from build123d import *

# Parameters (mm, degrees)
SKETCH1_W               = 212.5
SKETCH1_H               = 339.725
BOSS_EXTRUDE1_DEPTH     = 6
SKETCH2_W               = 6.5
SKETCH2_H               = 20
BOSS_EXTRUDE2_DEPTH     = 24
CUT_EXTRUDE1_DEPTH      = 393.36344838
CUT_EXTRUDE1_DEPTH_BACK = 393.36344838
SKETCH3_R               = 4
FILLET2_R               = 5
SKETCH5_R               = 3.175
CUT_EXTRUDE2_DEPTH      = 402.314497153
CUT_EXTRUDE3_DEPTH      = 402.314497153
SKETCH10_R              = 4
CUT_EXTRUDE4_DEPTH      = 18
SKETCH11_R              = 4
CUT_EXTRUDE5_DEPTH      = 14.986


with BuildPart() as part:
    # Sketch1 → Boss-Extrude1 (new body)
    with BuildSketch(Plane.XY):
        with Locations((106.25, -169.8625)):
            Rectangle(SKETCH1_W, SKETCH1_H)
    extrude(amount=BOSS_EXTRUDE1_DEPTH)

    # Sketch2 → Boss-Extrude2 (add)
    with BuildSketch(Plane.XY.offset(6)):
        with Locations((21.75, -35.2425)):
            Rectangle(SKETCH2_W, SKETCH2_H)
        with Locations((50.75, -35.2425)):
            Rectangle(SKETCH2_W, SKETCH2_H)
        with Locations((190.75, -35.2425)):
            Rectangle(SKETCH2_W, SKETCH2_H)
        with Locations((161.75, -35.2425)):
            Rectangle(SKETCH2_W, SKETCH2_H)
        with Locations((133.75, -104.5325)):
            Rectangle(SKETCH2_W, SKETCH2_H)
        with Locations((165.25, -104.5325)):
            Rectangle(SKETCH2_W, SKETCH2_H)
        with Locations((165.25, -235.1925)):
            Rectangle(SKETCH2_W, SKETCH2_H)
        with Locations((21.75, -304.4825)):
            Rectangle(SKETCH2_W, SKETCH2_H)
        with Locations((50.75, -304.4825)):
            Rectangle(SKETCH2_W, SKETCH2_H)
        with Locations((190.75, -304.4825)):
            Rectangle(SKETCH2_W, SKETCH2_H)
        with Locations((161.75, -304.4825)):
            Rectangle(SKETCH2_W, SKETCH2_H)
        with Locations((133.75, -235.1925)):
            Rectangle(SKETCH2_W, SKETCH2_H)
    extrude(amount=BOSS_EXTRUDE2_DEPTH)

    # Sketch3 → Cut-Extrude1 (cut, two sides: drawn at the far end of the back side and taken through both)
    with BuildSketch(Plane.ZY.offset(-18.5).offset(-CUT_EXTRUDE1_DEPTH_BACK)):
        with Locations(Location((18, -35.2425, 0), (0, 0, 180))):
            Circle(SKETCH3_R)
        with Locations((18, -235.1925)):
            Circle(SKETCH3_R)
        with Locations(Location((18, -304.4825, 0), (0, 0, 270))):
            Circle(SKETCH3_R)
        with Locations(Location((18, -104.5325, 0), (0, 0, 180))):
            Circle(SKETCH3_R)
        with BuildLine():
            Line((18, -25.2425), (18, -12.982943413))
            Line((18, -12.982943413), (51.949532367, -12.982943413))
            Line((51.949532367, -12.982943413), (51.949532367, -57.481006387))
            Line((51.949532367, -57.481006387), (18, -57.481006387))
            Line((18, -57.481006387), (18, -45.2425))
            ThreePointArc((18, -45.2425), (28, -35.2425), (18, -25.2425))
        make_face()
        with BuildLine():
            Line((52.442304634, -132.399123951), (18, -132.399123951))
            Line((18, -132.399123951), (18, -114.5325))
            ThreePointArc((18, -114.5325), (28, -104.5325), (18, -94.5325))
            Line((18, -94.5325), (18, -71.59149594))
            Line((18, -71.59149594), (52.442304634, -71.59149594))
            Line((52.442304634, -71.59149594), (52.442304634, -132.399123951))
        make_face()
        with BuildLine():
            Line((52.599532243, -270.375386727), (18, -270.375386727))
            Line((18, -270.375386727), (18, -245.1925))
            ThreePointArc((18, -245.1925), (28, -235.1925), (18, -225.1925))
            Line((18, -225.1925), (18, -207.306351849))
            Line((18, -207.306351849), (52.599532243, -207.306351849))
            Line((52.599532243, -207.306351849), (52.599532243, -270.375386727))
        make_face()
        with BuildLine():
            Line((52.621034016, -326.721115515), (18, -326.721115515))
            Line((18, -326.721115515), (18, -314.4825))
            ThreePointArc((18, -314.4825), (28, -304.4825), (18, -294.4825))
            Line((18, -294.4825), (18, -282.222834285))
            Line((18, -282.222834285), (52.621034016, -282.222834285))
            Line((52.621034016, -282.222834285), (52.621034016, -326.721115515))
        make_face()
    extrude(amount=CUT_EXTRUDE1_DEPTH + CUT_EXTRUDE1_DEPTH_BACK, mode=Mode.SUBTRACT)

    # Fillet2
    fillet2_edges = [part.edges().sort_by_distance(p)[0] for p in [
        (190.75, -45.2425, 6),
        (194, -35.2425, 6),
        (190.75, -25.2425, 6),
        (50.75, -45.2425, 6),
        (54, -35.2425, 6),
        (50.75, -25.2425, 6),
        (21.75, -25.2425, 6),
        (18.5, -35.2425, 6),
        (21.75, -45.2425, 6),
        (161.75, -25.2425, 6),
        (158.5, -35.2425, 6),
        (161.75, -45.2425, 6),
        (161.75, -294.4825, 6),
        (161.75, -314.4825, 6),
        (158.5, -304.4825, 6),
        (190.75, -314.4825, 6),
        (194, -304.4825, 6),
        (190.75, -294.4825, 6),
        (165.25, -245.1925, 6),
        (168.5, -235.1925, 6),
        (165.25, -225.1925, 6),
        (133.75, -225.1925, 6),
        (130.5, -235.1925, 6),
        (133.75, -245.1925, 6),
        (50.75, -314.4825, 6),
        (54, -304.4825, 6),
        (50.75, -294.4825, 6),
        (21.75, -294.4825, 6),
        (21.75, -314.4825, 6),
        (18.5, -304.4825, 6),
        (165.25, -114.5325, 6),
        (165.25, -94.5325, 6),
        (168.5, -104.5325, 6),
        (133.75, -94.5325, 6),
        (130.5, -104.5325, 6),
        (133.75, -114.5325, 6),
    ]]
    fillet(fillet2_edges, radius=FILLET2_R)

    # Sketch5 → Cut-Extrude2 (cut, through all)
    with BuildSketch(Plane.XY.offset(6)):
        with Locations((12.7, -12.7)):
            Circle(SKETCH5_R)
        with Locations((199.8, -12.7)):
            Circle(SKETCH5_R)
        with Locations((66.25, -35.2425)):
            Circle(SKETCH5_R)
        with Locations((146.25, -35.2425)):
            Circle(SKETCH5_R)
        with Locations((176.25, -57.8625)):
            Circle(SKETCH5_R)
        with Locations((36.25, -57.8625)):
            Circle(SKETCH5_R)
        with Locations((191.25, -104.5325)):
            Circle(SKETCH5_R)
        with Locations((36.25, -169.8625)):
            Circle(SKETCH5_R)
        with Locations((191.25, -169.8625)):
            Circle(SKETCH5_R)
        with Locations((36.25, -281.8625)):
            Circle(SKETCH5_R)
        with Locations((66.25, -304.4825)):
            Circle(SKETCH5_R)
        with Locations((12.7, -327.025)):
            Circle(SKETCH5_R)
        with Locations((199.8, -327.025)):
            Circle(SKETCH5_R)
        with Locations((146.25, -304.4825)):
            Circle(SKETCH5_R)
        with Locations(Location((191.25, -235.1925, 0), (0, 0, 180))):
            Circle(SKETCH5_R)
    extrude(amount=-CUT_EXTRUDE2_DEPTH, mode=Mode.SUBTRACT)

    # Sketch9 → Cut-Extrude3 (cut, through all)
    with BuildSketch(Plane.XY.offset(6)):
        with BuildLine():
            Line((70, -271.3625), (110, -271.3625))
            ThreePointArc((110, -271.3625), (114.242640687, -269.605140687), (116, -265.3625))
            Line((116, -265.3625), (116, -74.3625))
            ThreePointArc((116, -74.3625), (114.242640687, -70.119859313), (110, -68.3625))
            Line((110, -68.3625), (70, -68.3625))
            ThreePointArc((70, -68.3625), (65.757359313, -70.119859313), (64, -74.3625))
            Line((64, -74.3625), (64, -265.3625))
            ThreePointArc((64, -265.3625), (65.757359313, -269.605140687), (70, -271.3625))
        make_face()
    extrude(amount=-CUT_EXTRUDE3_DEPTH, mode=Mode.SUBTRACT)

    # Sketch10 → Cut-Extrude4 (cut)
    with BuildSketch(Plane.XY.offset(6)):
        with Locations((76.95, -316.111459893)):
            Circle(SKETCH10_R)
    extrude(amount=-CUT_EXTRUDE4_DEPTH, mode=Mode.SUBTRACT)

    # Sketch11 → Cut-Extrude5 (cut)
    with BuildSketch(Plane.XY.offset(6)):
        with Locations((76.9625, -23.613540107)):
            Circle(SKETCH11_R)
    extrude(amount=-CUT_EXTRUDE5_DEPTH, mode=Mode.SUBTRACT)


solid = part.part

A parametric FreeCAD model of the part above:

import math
import FreeCAD as App
import Part
import Sketcher
from FreeCAD import Vector
Q = App.Units.Quantity


def edges_at(feature, points):
    """Names of the edges that pass closest to the given points."""
    edges = feature.Shape.Edges
    near = lambda p: min(range(len(edges)), key=lambda i: edges[i].distToShape(Part.Vertex(*p))[0])
    return sorted({f"Edge{near(p) + 1}" for p in points})


def add_polygon(sketch, points):
    """Adds a closed chain of lines whose ends are joined by coincident constraints."""
    first, n = sketch.GeometryCount, len(points)
    for a, b in zip(points, points[1:] + points[:1]):
        sketch.addGeometry(Part.LineSegment(App.Vector(*a, 0), App.Vector(*b, 0)), False)
    for i in range(n):
        sketch.addConstraint(Sketcher.Constraint("Coincident", first + i, 2, first + (i + 1) % n, 1))

doc = App.newDocument("Part")
body = doc.addObject("PartDesign::Body", "Body")

sketch1 = body.newObject("Sketcher::SketchObject", "Sketch")
sketch1.AttachmentSupport = (doc.getObject("XY_Plane"), [""])
sketch1.MapMode = "FlatFace"
add_polygon(sketch1, [(0, 0), (0, -340), (212, -340), (212, 0)])
sketch1.addConstraint([
    Sketcher.Constraint("Vertical", 0),
    Sketcher.Constraint("Horizontal", 1),
    Sketcher.Constraint("Vertical", 2),
    Sketcher.Constraint("Horizontal", 3),
    Sketcher.Constraint("Coincident", 3, 2, -1, 1),
    Sketcher.Constraint("DistanceX", 1, 1, 1, 2, Q("212.5 mm")),
    Sketcher.Constraint("DistanceY", 0, 2, 0, 1, Q("339.725 mm")),
])
pad1 = body.newObject("PartDesign::Pad", "Pad")
pad1.Profile = sketch1
pad1.Length = 6

sketch2 = body.newObject("Sketcher::SketchObject", "Sketch001")
sketch2.AttachmentSupport = (doc.getObject("XY_Plane"), [""])
sketch2.MapMode = "FlatFace"
sketch2.AttachmentOffset = App.Placement(Vector(0, 0, 6), App.Rotation())
add_polygon(sketch2, [(18, -25), (18, -45), (25, -45), (25, -25)])
add_polygon(sketch2, [(48, -25), (48, -45), (54, -45), (54, -25)])
add_polygon(sketch2, [(188, -25), (188, -45), (194, -45), (194, -25)])
add_polygon(sketch2, [(158, -25), (158, -45), (165, -45), (165, -25)])
add_polygon(sketch2, [(130, -95), (130, -115), (137, -115), (137, -95)])
add_polygon(sketch2, [(162, -95), (162, -115), (168, -115), (168, -95)])
add_polygon(sketch2, [(162, -225), (162, -245), (168, -245), (168, -225)])
add_polygon(sketch2, [(18, -294), (18, -314), (25, -314), (25, -294)])
add_polygon(sketch2, [(48, -294), (48, -314), (54, -314), (54, -294)])
add_polygon(sketch2, [(188, -294), (188, -314), (194, -314), (194, -294)])
add_polygon(sketch2, [(158, -294), (158, -314), (165, -314), (165, -294)])
add_polygon(sketch2, [(130, -225), (130, -245), (137, -245), (137, -225)])
sketch2.addConstraint([
    Sketcher.Constraint("Vertical", 0),
    Sketcher.Constraint("Horizontal", 1),
    Sketcher.Constraint("Vertical", 2),
    Sketcher.Constraint("Horizontal", 3),
    Sketcher.Constraint("Vertical", 4),
    Sketcher.Constraint("Horizontal", 5),
    Sketcher.Constraint("Vertical", 6),
    Sketcher.Constraint("Horizontal", 7),
    Sketcher.Constraint("Vertical", 8),
    Sketcher.Constraint("Horizontal", 9),
    Sketcher.Constraint("Vertical", 10),
    Sketcher.Constraint("Horizontal", 11),
    Sketcher.Constraint("Vertical", 12),
    Sketcher.Constraint("Horizontal", 13),
    Sketcher.Constraint("Vertical", 14),
    Sketcher.Constraint("Horizontal", 15),
    Sketcher.Constraint("Vertical", 16),
    Sketcher.Constraint("Horizontal", 17),
    Sketcher.Constraint("Vertical", 18),
    Sketcher.Constraint("Horizontal", 19),
    Sketcher.Constraint("Vertical", 20),
    Sketcher.Constraint("Horizontal", 21),
    Sketcher.Constraint("Vertical", 22),
    Sketcher.Constraint("Horizontal", 23),
    Sketcher.Constraint("Vertical", 24),
    Sketcher.Constraint("Horizontal", 25),
    Sketcher.Constraint("Vertical", 26),
    Sketcher.Constraint("Horizontal", 27),
    Sketcher.Constraint("Vertical", 28),
    Sketcher.Constraint("Horizontal", 29),
    Sketcher.Constraint("Vertical", 30),
    Sketcher.Constraint("Horizontal", 31),
    Sketcher.Constraint("Vertical", 32),
    Sketcher.Constraint("Horizontal", 33),
    Sketcher.Constraint("Vertical", 34),
    Sketcher.Constraint("Horizontal", 35),
    Sketcher.Constraint("Vertical", 36),
    Sketcher.Constraint("Horizontal", 37),
    Sketcher.Constraint("Vertical", 38),
    Sketcher.Constraint("Horizontal", 39),
    Sketcher.Constraint("Vertical", 40),
    Sketcher.Constraint("Horizontal", 41),
    Sketcher.Constraint("Vertical", 42),
    Sketcher.Constraint("Horizontal", 43),
    Sketcher.Constraint("Vertical", 44),
    Sketcher.Constraint("Horizontal", 45),
    Sketcher.Constraint("Vertical", 46),
    Sketcher.Constraint("Horizontal", 47),
    Sketcher.Constraint("Horizontal", 1, 2, 4, 2),
    Sketcher.Constraint("Horizontal", 3, 2, 6, 2),
    Sketcher.Constraint("Horizontal", 5, 2, 8, 2),
    Sketcher.Constraint("Horizontal", 7, 2, 10, 2),
    Sketcher.Constraint("Horizontal", 9, 2, 12, 2),
    Sketcher.Constraint("Horizontal", 11, 2, 14, 2),
    Sketcher.Constraint("Horizontal", 17, 2, 20, 2),
    Sketcher.Constraint("Horizontal", 19, 2, 22, 2),
    Sketcher.Constraint("Horizontal", 29, 2, 32, 2),
    Sketcher.Constraint("Horizontal", 31, 2, 34, 2),
    Sketcher.Constraint("Horizontal", 33, 2, 36, 2),
    Sketcher.Constraint("Horizontal", 35, 2, 38, 2),
    Sketcher.Constraint("Horizontal", 37, 2, 40, 2),
    Sketcher.Constraint("Horizontal", 39, 2, 42, 2),
    Sketcher.Constraint("Horizontal", 25, 2, 44, 2),
    Sketcher.Constraint("Horizontal", 27, 2, 46, 2),
    Sketcher.Constraint("Vertical", 23, 2, 24, 2),
    Sketcher.Constraint("Vertical", 22, 2, 25, 2),
    Sketcher.Constraint("Vertical", 3, 2, 28, 2),
    Sketcher.Constraint("Vertical", 2, 2, 29, 2),
    Sketcher.Constraint("Vertical", 7, 2, 32, 2),
    Sketcher.Constraint("Vertical", 6, 2, 33, 2),
    Sketcher.Constraint("Vertical", 11, 2, 36, 2),
    Sketcher.Constraint("Vertical", 10, 2, 37, 2),
    Sketcher.Constraint("Vertical", 15, 2, 40, 2),
    Sketcher.Constraint("Vertical", 14, 2, 41, 2),
    Sketcher.Constraint("Vertical", 19, 2, 44, 2),
    Sketcher.Constraint("Vertical", 18, 2, 45, 2),
    Sketcher.Constraint("Equal", 3, 5),
    Sketcher.Constraint("Equal", 7, 9),
    Sketcher.Constraint("Equal", 11, 13),
    Sketcher.Constraint("Equal", 15, 17),
    Sketcher.Constraint("Equal", 19, 21),
    Sketcher.Constraint("Equal", 14, 16),
    Sketcher.Constraint("Equal", 22, 24),
    Sketcher.Constraint("Equal", 26, 28),
    Sketcher.Constraint("DistanceY", 0, 2, 0, 1, Q("20 mm")),
    Sketcher.Constraint("DistanceX", 1, 1, 1, 2, Q("6.5 mm")),
    Sketcher.Constraint("DistanceX", -1, 1, 1, 2, Q("25 mm")),
    Sketcher.Constraint("DistanceX", -1, 1, 5, 2, Q("54 mm")),
    Sketcher.Constraint("DistanceX", -1, 1, 9, 2, Q("194 mm")),
    Sketcher.Constraint("DistanceX", -1, 1, 13, 2, Q("165 mm")),
    Sketcher.Constraint("DistanceX", -1, 1, 17, 2, Q("137 mm")),
    Sketcher.Constraint("DistanceX", -1, 1, 20, 2, Q("162 mm")),
    Sketcher.Constraint("DistanceY", 16, 2, 12, 2, Q("69.29 mm")),
    Sketcher.Constraint("DistanceY", 24, 2, 20, 2, Q("130.66 mm")),
    Sketcher.Constraint("DistanceY", 28, 2, 24, 2, Q("69.29 mm")),
    Sketcher.Constraint("DistanceY", 0, 2, -1, 1, Q("45.2425 mm")),
])
pad2 = body.newObject("PartDesign::Pad", "Pad001")
pad2.Profile = sketch2
pad2.Length = 24

sketch3 = body.newObject("Sketcher::SketchObject", "Sketch002")
sketch3.AttachmentSupport = (doc.getObject("YZ_Plane"), [""])
sketch3.MapMode = "FlatFace"
sketch3.AttachmentOffset = App.Placement(Vector(0, 0, 18.5), App.Rotation())
sketch3.addGeometry([
    Part.Circle(Vector(-35.2, 18, 0), Vector(0, 0, 1), 4),
    Part.Circle(Vector(-235.2, 18, 0), Vector(0, 0, 1), 4),
    Part.Circle(Vector(-304.5, 18, 0), Vector(0, 0, 1), 4),
    Part.Circle(Vector(-104.5, 18, 0), Vector(0, 0, 1), 4),
    Part.LineSegment(Vector(-13, 18, 0), Vector(-25.2, 18, 0)),
    Part.ArcOfCircle(Part.Circle(Vector(-35.2, 18, 0), Vector(0, 0, 1), 10), math.radians(0), math.radians(180)),
    Part.LineSegment(Vector(-45.2, 18, 0), Vector(-57.5, 18, 0)),
    Part.LineSegment(Vector(-57.5, 18, 0), Vector(-57.5, 51.9, 0)),
    Part.LineSegment(Vector(-57.5, 51.9, 0), Vector(-13, 51.9, 0)),
    Part.LineSegment(Vector(-13, 51.9, 0), Vector(-13, 18, 0)),
    Part.LineSegment(Vector(-132.4, 18, 0), Vector(-132.4, 52.4, 0)),
    Part.LineSegment(Vector(-132.4, 52.4, 0), Vector(-71.6, 52.4, 0)),
    Part.LineSegment(Vector(-71.6, 52.4, 0), Vector(-71.6, 18, 0)),
    Part.LineSegment(Vector(-71.6, 18, 0), Vector(-94.5, 18, 0)),
    Part.ArcOfCircle(Part.Circle(Vector(-104.5, 18, 0), Vector(0, 0, 1), 10), math.radians(0), math.radians(180)),
    Part.LineSegment(Vector(-114.5, 18, 0), Vector(-132.4, 18, 0)),
    Part.LineSegment(Vector(-270.4, 18, 0), Vector(-270.4, 52.6, 0)),
    Part.LineSegment(Vector(-270.4, 52.6, 0), Vector(-207.3, 52.6, 0)),
    Part.LineSegment(Vector(-207.3, 52.6, 0), Vector(-207.3, 18, 0)),
    Part.LineSegment(Vector(-207.3, 18, 0), Vector(-225.2, 18, 0)),
    Part.ArcOfCircle(Part.Circle(Vector(-235.2, 18, 0), Vector(0, 0, 1), 10), math.radians(0), math.radians(180)),
    Part.LineSegment(Vector(-245.2, 18, 0), Vector(-270.4, 18, 0)),
    Part.LineSegment(Vector(-326.7, 18, 0), Vector(-326.7, 52.6, 0)),
    Part.LineSegment(Vector(-326.7, 52.6, 0), Vector(-282.2, 52.6, 0)),
    Part.LineSegment(Vector(-282.2, 52.6, 0), Vector(-282.2, 18, 0)),
    Part.LineSegment(Vector(-282.2, 18, 0), Vector(-294.5, 18, 0)),
    Part.ArcOfCircle(Part.Circle(Vector(-304.5, 18, 0), Vector(0, 0, 1), 10), math.radians(0), math.radians(180)),
    Part.LineSegment(Vector(-314.5, 18, 0), Vector(-326.7, 18, 0)),
], False)
sketch3.addConstraint([
    Sketcher.Constraint("Coincident", 4, 2, 5, 1),
    Sketcher.Constraint("Coincident", 5, 2, 6, 1),
    Sketcher.Constraint("Coincident", 6, 2, 7, 1),
    Sketcher.Constraint("Coincident", 7, 2, 8, 1),
    Sketcher.Constraint("Coincident", 8, 2, 9, 1),
    Sketcher.Constraint("Coincident", 9, 2, 4, 1),
    Sketcher.Constraint("Coincident", 10, 2, 11, 1),
    Sketcher.Constraint("Coincident", 11, 2, 12, 1),
    Sketcher.Constraint("Coincident", 12, 2, 13, 1),
    Sketcher.Constraint("Coincident", 13, 2, 14, 1),
    Sketcher.Constraint("Coincident", 14, 2, 15, 1),
    Sketcher.Constraint("Coincident", 15, 2, 10, 1),
    Sketcher.Constraint("Coincident", 16, 2, 17, 1),
    Sketcher.Constraint("Coincident", 17, 2, 18, 1),
    Sketcher.Constraint("Coincident", 18, 2, 19, 1),
    Sketcher.Constraint("Coincident", 19, 2, 20, 1),
    Sketcher.Constraint("Coincident", 20, 2, 21, 1),
    Sketcher.Constraint("Coincident", 21, 2, 16, 1),
    Sketcher.Constraint("Coincident", 22, 2, 23, 1),
    Sketcher.Constraint("Coincident", 23, 2, 24, 1),
    Sketcher.Constraint("Coincident", 24, 2, 25, 1),
    Sketcher.Constraint("Coincident", 25, 2, 26, 1),
    Sketcher.Constraint("Coincident", 26, 2, 27, 1),
    Sketcher.Constraint("Coincident", 27, 2, 22, 1),
    Sketcher.Constraint("Horizontal", 4),
    Sketcher.Constraint("Horizontal", 6),
    Sketcher.Constraint("Vertical", 7),
    Sketcher.Constraint("Horizontal", 8),
    Sketcher.Constraint("Vertical", 9),
    Sketcher.Constraint("Vertical", 10),
    Sketcher.Constraint("Horizontal", 11),
    Sketcher.Constraint("Vertical", 12),
    Sketcher.Constraint("Horizontal", 13),
    Sketcher.Constraint("Horizontal", 15),
    Sketcher.Constraint("Vertical", 16),
    Sketcher.Constraint("Horizontal", 17),
    Sketcher.Constraint("Vertical", 18),
    Sketcher.Constraint("Horizontal", 19),
    Sketcher.Constraint("Horizontal", 21),
    Sketcher.Constraint("Vertical", 22),
    Sketcher.Constraint("Horizontal", 23),
    Sketcher.Constraint("Vertical", 24),
    Sketcher.Constraint("Horizontal", 25),
    Sketcher.Constraint("Horizontal", 27),
    Sketcher.Constraint("Coincident", 5, 3, 0, 3),
    Sketcher.Constraint("Coincident", 14, 3, 3, 3),
    Sketcher.Constraint("Coincident", 20, 3, 1, 3),
    Sketcher.Constraint("Coincident", 26, 3, 2, 3),
    Sketcher.Constraint("Equal", 0, 1),
    Sketcher.Constraint("Equal", 1, 2),
    Sketcher.Constraint("Equal", 2, 3),
    Sketcher.Constraint("Equal", 5, 14),
    Sketcher.Constraint("Equal", 14, 20),
    Sketcher.Constraint("Equal", 20, 26),
    Sketcher.Constraint("Horizontal", 0, 3, 1, 3),
    Sketcher.Constraint("Horizontal", 1, 3, 2, 3),
    Sketcher.Constraint("Horizontal", 2, 3, 3, 3),
    Sketcher.Constraint("Horizontal", 26, 3, 4, 2),
    Sketcher.Constraint("Horizontal", 4, 2, 5, 2),
    Sketcher.Constraint("Horizontal", 9, 2, 12, 2),
    Sketcher.Constraint("Horizontal", 13, 2, 14, 2),
    Sketcher.Constraint("Horizontal", 15, 2, 18, 2),
    Sketcher.Constraint("Horizontal", 19, 2, 20, 2),
    Sketcher.Constraint("Horizontal", 21, 2, 24, 2),
    Sketcher.Constraint("Horizontal", 25, 2, 26, 2),
    Sketcher.Constraint("Diameter", 0, Q("8 mm")),
    Sketcher.Constraint("Radius", 5, Q("10 mm")),
    Sketcher.Constraint("DistanceY", -1, 1, 0, 3, Q("18 mm")),
    Sketcher.Constraint("DistanceX", 1, 3, 0, 3, Q("199.95 mm")),
    Sketcher.Constraint("DistanceX", 2, 3, 1, 3, Q("69.29 mm")),
    Sketcher.Constraint("DistanceX", 3, 3, 0, 3, Q("69.29 mm")),
    Sketcher.Constraint("DistanceX", 11, 1, 11, 2, Q("60.807628 mm")),
    Sketcher.Constraint("DistanceX", 19, 2, 19, 1, Q("17.886148 mm")),
    Sketcher.Constraint("DistanceX", 23, 1, 23, 2, Q("44.498281 mm")),
    Sketcher.Constraint("DistanceX", 0, 3, -1, 1, Q("35.2425 mm")),
    Sketcher.Constraint("DistanceY", 16, 2, 22, 2, Q("0.021502 mm")),
    Sketcher.Constraint("DistanceX", 4, 2, 4, 1, Q("12.259557 mm")),
    Sketcher.Constraint("DistanceX", 6, 2, 6, 1, Q("12.238506 mm")),
    Sketcher.Constraint("DistanceX", 13, 2, 13, 1, Q("22.941004 mm")),
    Sketcher.Constraint("DistanceX", 17, 1, 17, 2, Q("63.069035 mm")),
    Sketcher.Constraint("DistanceX", 25, 2, 25, 1, Q("12.259666 mm")),
    Sketcher.Constraint("DistanceY", 7, 1, 7, 2, Q("33.949532 mm")),
    Sketcher.Constraint("DistanceY", 10, 1, 10, 2, Q("34.442305 mm")),
    Sketcher.Constraint("DistanceY", 16, 1, 16, 2, Q("34.599532 mm")),
])
pocket1 = body.newObject("PartDesign::Pocket", "Pocket")
pocket1.Profile = sketch3
pocket1.Type = "ThroughAll"
pocket1.Midplane = True
doc.recompute()

fillet = body.newObject("PartDesign::Fillet", "Fillet")
fillet.Base = (pocket1, edges_at(pocket1, [
    (190.75, -45.242, 6),
    (194, -35.242, 6),
    (190.75, -25.242, 6),
    (50.75, -45.242, 6),
    (54, -35.242, 6),
    (50.75, -25.242, 6),
    (21.75, -25.242, 6),
    (18.5, -35.242, 6),
    (21.75, -45.242, 6),
    (161.75, -25.242, 6),
    (158.5, -35.242, 6),
    (161.75, -45.242, 6),
    (161.75, -294.483, 6),
    (161.75, -314.483, 6),
    (158.5, -304.483, 6),
    (190.75, -314.483, 6),
    (194, -304.483, 6),
    (190.75, -294.483, 6),
    (165.25, -245.192, 6),
    (168.5, -235.192, 6),
    (165.25, -225.192, 6),
    (133.75, -225.192, 6),
    (130.5, -235.192, 6),
    (133.75, -245.192, 6),
    (50.75, -314.483, 6),
    (54, -304.483, 6),
    (50.75, -294.483, 6),
    (21.75, -294.483, 6),
    (21.75, -314.483, 6),
    (18.5, -304.483, 6),
    (165.25, -114.532, 6),
    (165.25, -94.532, 6),
    (168.5, -104.532, 6),
    (133.75, -94.532, 6),
    (130.5, -104.532, 6),
    (133.75, -114.532, 6),
]))
fillet.Radius = 5

sketch4 = body.newObject("Sketcher::SketchObject", "Sketch003")
sketch4.AttachmentSupport = (doc.getObject("XY_Plane"), [""])
sketch4.MapMode = "FlatFace"
sketch4.AttachmentOffset = App.Placement(Vector(0, 0, 6), App.Rotation())
sketch4.addGeometry([
    Part.Circle(Vector(12.7, -12.7, 0), Vector(0, 0, 1), 3.2),
    Part.Circle(Vector(199.8, -12.7, 0), Vector(0, 0, 1), 3.2),
    Part.Circle(Vector(66.2, -35.2, 0), Vector(0, 0, 1), 3.2),
    Part.Circle(Vector(146.2, -35.2, 0), Vector(0, 0, 1), 3.2),
    Part.Circle(Vector(176.2, -57.9, 0), Vector(0, 0, 1), 3.2),
    Part.Circle(Vector(36.2, -57.9, 0), Vector(0, 0, 1), 3.2),
    Part.Circle(Vector(191.2, -104.5, 0), Vector(0, 0, 1), 3.2),
    Part.Circle(Vector(36.2, -169.9, 0), Vector(0, 0, 1), 3.2),
    Part.Circle(Vector(191.2, -169.9, 0), Vector(0, 0, 1), 3.2),
    Part.Circle(Vector(36.2, -281.9, 0), Vector(0, 0, 1), 3.2),
    Part.Circle(Vector(66.2, -304.5, 0), Vector(0, 0, 1), 3.2),
    Part.Circle(Vector(12.7, -327, 0), Vector(0, 0, 1), 3.2),
    Part.Circle(Vector(199.8, -327, 0), Vector(0, 0, 1), 3.2),
    Part.Circle(Vector(146.2, -304.5, 0), Vector(0, 0, 1), 3.2),
    Part.Circle(Vector(191.2, -235.2, 0), Vector(0, 0, 1), 3.2),
], False)
sketch4.addConstraint([
    Sketcher.Constraint("Equal", 0, 1),
    Sketcher.Constraint("Equal", 1, 2),
    Sketcher.Constraint("Equal", 2, 3),
    Sketcher.Constraint("Equal", 3, 4),
    Sketcher.Constraint("Equal", 4, 5),
    Sketcher.Constraint("Equal", 5, 6),
    Sketcher.Constraint("Equal", 6, 7),
    Sketcher.Constraint("Equal", 7, 8),
    Sketcher.Constraint("Equal", 8, 9),
    Sketcher.Constraint("Equal", 9, 10),
    Sketcher.Constraint("Equal", 10, 11),
    Sketcher.Constraint("Equal", 11, 12),
    Sketcher.Constraint("Equal", 12, 13),
    Sketcher.Constraint("Equal", 13, 14),
    Sketcher.Constraint("Horizontal", 0, 3, 1, 3),
    Sketcher.Constraint("Horizontal", 2, 3, 3, 3),
    Sketcher.Constraint("Horizontal", 4, 3, 5, 3),
    Sketcher.Constraint("Horizontal", 7, 3, 8, 3),
    Sketcher.Constraint("Horizontal", 11, 3, 12, 3),
    Sketcher.Constraint("Horizontal", 10, 3, 13, 3),
    Sketcher.Constraint("Vertical", 5, 3, 7, 3),
    Sketcher.Constraint("Vertical", 6, 3, 8, 3),
    Sketcher.Constraint("Vertical", 7, 3, 9, 3),
    Sketcher.Constraint("Vertical", 2, 3, 10, 3),
    Sketcher.Constraint("Vertical", 0, 3, 11, 3),
    Sketcher.Constraint("Vertical", 1, 3, 12, 3),
    Sketcher.Constraint("Vertical", 3, 3, 13, 3),
    Sketcher.Constraint("Vertical", 8, 3, 14, 3),
    Sketcher.Constraint("Diameter", 0, Q("6.35 mm")),
    Sketcher.Constraint("DistanceX", 2, 3, 3, 3, Q("80 mm")),
    Sketcher.Constraint("DistanceX", 3, 3, 4, 3, Q("30 mm")),
    Sketcher.Constraint("DistanceX", 5, 3, 2, 3, Q("30 mm")),
    Sketcher.Constraint("DistanceX", 4, 3, 6, 3, Q("15 mm")),
    Sketcher.Constraint("DistanceY", 7, 3, 5, 3, Q("112 mm")),
    Sketcher.Constraint("DistanceY", 9, 3, 7, 3, Q("112 mm")),
    Sketcher.Constraint("DistanceX", -1, 1, 0, 3, Q("12.7 mm")),
    Sketcher.Constraint("DistanceY", 0, 3, -1, 1, Q("12.7 mm")),
    Sketcher.Constraint("DistanceX", -1, 1, 1, 3, Q("199.8 mm")),
    Sketcher.Constraint("DistanceX", -1, 1, 2, 3, Q("66.25 mm")),
    Sketcher.Constraint("DistanceY", 4, 3, 3, 3, Q("22.62 mm")),
    Sketcher.Constraint("DistanceY", 6, 3, 4, 3, Q("46.67 mm")),
    Sketcher.Constraint("DistanceY", 10, 3, 9, 3, Q("22.62 mm")),
    Sketcher.Constraint("DistanceY", 14, 3, 8, 3, Q("65.33 mm")),
    Sketcher.Constraint("DistanceY", 11, 3, -1, 1, Q("327.025 mm")),
    Sketcher.Constraint("DistanceY", 2, 3, -1, 1, Q("35.2425 mm")),
])
pocket2 = body.newObject("PartDesign::Pocket", "Pocket001")
pocket2.Profile = sketch4
pocket2.Type = "ThroughAll"

sketch5 = body.newObject("Sketcher::SketchObject", "Sketch004")
sketch5.AttachmentSupport = (doc.getObject("XY_Plane"), [""])
sketch5.MapMode = "FlatFace"
sketch5.AttachmentOffset = App.Placement(Vector(0, 0, 6), App.Rotation())
sketch5.addGeometry([
    Part.LineSegment(Vector(70, -271, 0), Vector(110, -271, 0)),
    Part.ArcOfCircle(Part.Circle(Vector(110, -265, 0), Vector(0, 0, 1), 6), math.radians(-90), math.radians(0)),
    Part.LineSegment(Vector(116, -265, 0), Vector(116, -74, 0)),
    Part.ArcOfCircle(Part.Circle(Vector(110, -74, 0), Vector(0, 0, 1), 6), math.radians(0), math.radians(90)),
    Part.LineSegment(Vector(110, -68, 0), Vector(70, -68, 0)),
    Part.ArcOfCircle(Part.Circle(Vector(70, -74, 0), Vector(0, 0, 1), 6), math.radians(90), math.radians(180)),
    Part.LineSegment(Vector(64, -74, 0), Vector(64, -265, 0)),
    Part.ArcOfCircle(Part.Circle(Vector(70, -265, 0), Vector(0, 0, 1), 6), math.radians(180), math.radians(270)),
], False)
sketch5.addConstraint([
    Sketcher.Constraint("Tangent", 0, 2, 1, 1),
    Sketcher.Constraint("Tangent", 1, 2, 2, 1),
    Sketcher.Constraint("Tangent", 2, 2, 3, 1),
    Sketcher.Constraint("Tangent", 3, 2, 4, 1),
    Sketcher.Constraint("Tangent", 4, 2, 5, 1),
    Sketcher.Constraint("Tangent", 5, 2, 6, 1),
    Sketcher.Constraint("Tangent", 6, 2, 7, 1),
    Sketcher.Constraint("Tangent", 7, 2, 0, 1),
    Sketcher.Constraint("Horizontal", 0),
    Sketcher.Constraint("Vertical", 2),
    Sketcher.Constraint("Horizontal", 4),
    Sketcher.Constraint("Vertical", 6),
    Sketcher.Constraint("Equal", 1, 3),
    Sketcher.Constraint("Equal", 3, 5),
    Sketcher.Constraint("Equal", 5, 7),
    Sketcher.Constraint("Radius", 1, Q("6 mm")),
    Sketcher.Constraint("DistanceX", 0, 1, 0, 2, Q("40 mm")),
    Sketcher.Constraint("DistanceY", 2, 1, 2, 2, Q("191 mm")),
    Sketcher.Constraint("DistanceX", -1, 1, 1, 3, Q("110 mm")),
    Sketcher.Constraint("DistanceY", 1, 3, -1, 1, Q("265.3625 mm")),
])
pocket3 = body.newObject("PartDesign::Pocket", "Pocket002")
pocket3.Profile = sketch5
pocket3.Type = "ThroughAll"

sketch6 = body.newObject("Sketcher::SketchObject", "Sketch005")
sketch6.AttachmentSupport = (doc.getObject("XY_Plane"), [""])
sketch6.MapMode = "FlatFace"
sketch6.AttachmentOffset = App.Placement(Vector(0, 0, 6), App.Rotation())
sketch6.addGeometry(Part.Circle(Vector(77, -316.1, 0), Vector(0, 0, 1), 4), False)
sketch6.addConstraint([
    Sketcher.Constraint("Diameter", 0, Q("8 mm")),
    Sketcher.Constraint("DistanceX", -1, 1, 0, 3, Q("76.95 mm")),
    Sketcher.Constraint("DistanceY", 0, 3, -1, 1, Q("316.11146 mm")),
])
pocket4 = body.newObject("PartDesign::Pocket", "Pocket003")
pocket4.Profile = sketch6
pocket4.Length = 18

sketch7 = body.newObject("Sketcher::SketchObject", "Sketch006")
sketch7.AttachmentSupport = (doc.getObject("XY_Plane"), [""])
sketch7.MapMode = "FlatFace"
sketch7.AttachmentOffset = App.Placement(Vector(0, 0, 6), App.Rotation())
sketch7.addGeometry(Part.Circle(Vector(77, -23.6, 0), Vector(0, 0, 1), 4), False)
sketch7.addConstraint([
    Sketcher.Constraint("Diameter", 0, Q("8 mm")),
    Sketcher.Constraint("DistanceX", -1, 1, 0, 3, Q("76.9625 mm")),
    Sketcher.Constraint("DistanceY", 0, 3, -1, 1, Q("23.61354 mm")),
])
pocket5 = body.newObject("PartDesign::Pocket", "Pocket004")
pocket5.Profile = sketch7
pocket5.Length = 14.986

doc.recompute()
